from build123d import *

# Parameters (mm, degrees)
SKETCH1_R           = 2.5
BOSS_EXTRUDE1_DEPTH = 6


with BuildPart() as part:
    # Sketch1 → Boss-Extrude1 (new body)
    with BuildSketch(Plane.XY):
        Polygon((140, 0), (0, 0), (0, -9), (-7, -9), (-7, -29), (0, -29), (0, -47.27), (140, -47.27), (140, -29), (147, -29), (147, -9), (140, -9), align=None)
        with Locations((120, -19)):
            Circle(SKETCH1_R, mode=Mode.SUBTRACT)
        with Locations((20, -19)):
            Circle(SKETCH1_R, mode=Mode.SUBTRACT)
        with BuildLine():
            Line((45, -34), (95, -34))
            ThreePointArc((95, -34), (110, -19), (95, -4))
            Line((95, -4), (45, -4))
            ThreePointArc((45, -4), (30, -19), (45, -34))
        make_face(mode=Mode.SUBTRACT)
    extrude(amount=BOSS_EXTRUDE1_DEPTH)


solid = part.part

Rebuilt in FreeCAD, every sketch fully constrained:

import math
import FreeCAD as App
import Part
import Sketcher
from FreeCAD import Vector

doc = App.newDocument("Part")
body = doc.addObject("PartDesign::Body", "Body")

# Sketch on XY plane
sketch1 = doc.addObject("Sketcher::SketchObject", "Sketch")
body.addObject(sketch1)
sketch1.AttachmentSupport = (doc.XY_Plane, [""])
sketch1.MapMode = "FlatFace"
sketch1.addGeometry([
    Part.LineSegment(Vector(140, 0, 0), Vector(0, 0, 0)),  # 0
    Part.LineSegment(Vector(0, 0, 0), Vector(0, -9, 0)),  # 1
    Part.LineSegment(Vector(0, -9, 0), Vector(-7, -9, 0)),  # 2
    Part.LineSegment(Vector(-7, -9, 0), Vector(-7, -29, 0)),  # 3
    Part.LineSegment(Vector(-7, -29, 0), Vector(0, -29, 0)),  # 4
    Part.LineSegment(Vector(0, -29, 0), Vector(0, -47.3, 0)),  # 5
    Part.LineSegment(Vector(0, -47.3, 0), Vector(140, -47.3, 0)),  # 6
    Part.LineSegment(Vector(140, -47.3, 0), Vector(140, -29, 0)),  # 7
    Part.LineSegment(Vector(140, -29, 0), Vector(147, -29, 0)),  # 8
    Part.LineSegment(Vector(147, -29, 0), Vector(147, -9, 0)),  # 9
    Part.LineSegment(Vector(147, -9, 0), Vector(140, -9, 0)),  # 10
    Part.LineSegment(Vector(140, -9, 0), Vector(140, 0, 0)),  # 11
    Part.Circle(Vector(20, -19, 0), Vector(0, 0, 1), 2.5),  # 12
    Part.LineSegment(Vector(95, -34, 0), Vector(45, -34, 0)),  # 13
    Part.ArcOfCircle(Part.Circle(Vector(45, -19, 0), Vector(0, 0, 1), 15), math.radians(90), math.radians(270)),  # 14
    Part.LineSegment(Vector(45, -4, 0), Vector(95, -4, 0)),  # 15
    Part.ArcOfCircle(Part.Circle(Vector(95, -19, 0), Vector(0, 0, 1), 15), math.radians(-90), math.radians(90)),  # 16
    Part.Circle(Vector(120, -19, 0), Vector(0, 0, 1), 2.5),  # 17
], False)
sketch1.addConstraint([
    Sketcher.Constraint("Coincident", 0, 2, 1, 1),
    Sketcher.Constraint("Coincident", 1, 2, 2, 1),
    Sketcher.Constraint("Coincident", 2, 2, 3, 1),
    Sketcher.Constraint("Coincident", 3, 2, 4, 1),
    Sketcher.Constraint("Coincident", 4, 2, 5, 1),
    Sketcher.Constraint("Coincident", 5, 2, 6, 1),
    Sketcher.Constraint("Coincident", 6, 2, 7, 1),
    Sketcher.Constraint("Coincident", 7, 2, 8, 1),
    Sketcher.Constraint("Coincident", 8, 2, 9, 1),
    Sketcher.Constraint("Coincident", 9, 2, 10, 1),
    Sketcher.Constraint("Coincident", 10, 2, 11, 1),
    Sketcher.Constraint("Coincident", 11, 2, 0, 1),
    Sketcher.Constraint("Tangent", 13, 2, 14, 2),
    Sketcher.Constraint("Tangent", 14, 1, 15, 1),
    Sketcher.Constraint("Tangent", 15, 2, 16, 2),
    Sketcher.Constraint("Tangent", 16, 1, 13, 1),
    Sketcher.Constraint("Horizontal", 0),
    Sketcher.Constraint("Vertical", 1),
    Sketcher.Constraint("Horizontal", 2),
    Sketcher.Constraint("Vertical", 3),
    Sketcher.Constraint("Horizontal", 4),
    Sketcher.Constraint("Vertical", 5),
    Sketcher.Constraint("Horizontal", 6),
    Sketcher.Constraint("Vertical", 7),
    Sketcher.Constraint("Horizontal", 8),
    Sketcher.Constraint("Vertical", 9),
    Sketcher.Constraint("Horizontal", 10),
    Sketcher.Constraint("Vertical", 11),
    Sketcher.Constraint("Horizontal", 13),
    Sketcher.Constraint("Horizontal", 15),
    Sketcher.Constraint("Coincident", 0, 2, -1, 1),
    Sketcher.Constraint("Equal", 12, 17),
    Sketcher.Constraint("PointOnObject", 4, 2, -2),
    Sketcher.Constraint("Horizontal", 12, 3, 14, 3),
    Sketcher.Constraint("Horizontal", 16, 3, 17, 3),
    Sketcher.Constraint("Horizontal", 4, 2, 7, 2),
    Sketcher.Constraint("Horizontal", 2, 2, 9, 2),
    Sketcher.Constraint("Vertical", 7, 2, 10, 2),
    Sketcher.Constraint("Equal", 4, 8),
    Sketcher.Constraint("Diameter", 12, 5.0),
    Sketcher.Constraint("Radius", 14, 15.0),
    Sketcher.Constraint("DistanceX", 0, 2, 0, 1, 140.0),
    Sketcher.Constraint("DistanceX", 2, 2, 2, 1, 7.0),
    Sketcher.Constraint("DistanceX", 13, 2, 13, 1, 50.0),
    Sketcher.Constraint("DistanceY", 1, 2, 1, 1, 9.0),
    Sketcher.Constraint("DistanceY", 3, 2, 3, 1, 20.0),
    Sketcher.Constraint("DistanceX", -1, 1, 12, 3, 20.0),
    Sketcher.Constraint("DistanceY", 12, 3, -1, 1, 19.0),
    Sketcher.Constraint("DistanceX", -1, 1, 14, 3, 45.0),
    Sketcher.Constraint("DistanceX", -1, 1, 17, 3, 120.0),
    Sketcher.Constraint("DistanceY", 5, 2, 5, 1, 18.27),
])
pad1 = doc.addObject("PartDesign::Pad", "Pad")
body.addObject(pad1)
pad1.Profile = sketch1
pad1.Length = 6

doc.recompute()
